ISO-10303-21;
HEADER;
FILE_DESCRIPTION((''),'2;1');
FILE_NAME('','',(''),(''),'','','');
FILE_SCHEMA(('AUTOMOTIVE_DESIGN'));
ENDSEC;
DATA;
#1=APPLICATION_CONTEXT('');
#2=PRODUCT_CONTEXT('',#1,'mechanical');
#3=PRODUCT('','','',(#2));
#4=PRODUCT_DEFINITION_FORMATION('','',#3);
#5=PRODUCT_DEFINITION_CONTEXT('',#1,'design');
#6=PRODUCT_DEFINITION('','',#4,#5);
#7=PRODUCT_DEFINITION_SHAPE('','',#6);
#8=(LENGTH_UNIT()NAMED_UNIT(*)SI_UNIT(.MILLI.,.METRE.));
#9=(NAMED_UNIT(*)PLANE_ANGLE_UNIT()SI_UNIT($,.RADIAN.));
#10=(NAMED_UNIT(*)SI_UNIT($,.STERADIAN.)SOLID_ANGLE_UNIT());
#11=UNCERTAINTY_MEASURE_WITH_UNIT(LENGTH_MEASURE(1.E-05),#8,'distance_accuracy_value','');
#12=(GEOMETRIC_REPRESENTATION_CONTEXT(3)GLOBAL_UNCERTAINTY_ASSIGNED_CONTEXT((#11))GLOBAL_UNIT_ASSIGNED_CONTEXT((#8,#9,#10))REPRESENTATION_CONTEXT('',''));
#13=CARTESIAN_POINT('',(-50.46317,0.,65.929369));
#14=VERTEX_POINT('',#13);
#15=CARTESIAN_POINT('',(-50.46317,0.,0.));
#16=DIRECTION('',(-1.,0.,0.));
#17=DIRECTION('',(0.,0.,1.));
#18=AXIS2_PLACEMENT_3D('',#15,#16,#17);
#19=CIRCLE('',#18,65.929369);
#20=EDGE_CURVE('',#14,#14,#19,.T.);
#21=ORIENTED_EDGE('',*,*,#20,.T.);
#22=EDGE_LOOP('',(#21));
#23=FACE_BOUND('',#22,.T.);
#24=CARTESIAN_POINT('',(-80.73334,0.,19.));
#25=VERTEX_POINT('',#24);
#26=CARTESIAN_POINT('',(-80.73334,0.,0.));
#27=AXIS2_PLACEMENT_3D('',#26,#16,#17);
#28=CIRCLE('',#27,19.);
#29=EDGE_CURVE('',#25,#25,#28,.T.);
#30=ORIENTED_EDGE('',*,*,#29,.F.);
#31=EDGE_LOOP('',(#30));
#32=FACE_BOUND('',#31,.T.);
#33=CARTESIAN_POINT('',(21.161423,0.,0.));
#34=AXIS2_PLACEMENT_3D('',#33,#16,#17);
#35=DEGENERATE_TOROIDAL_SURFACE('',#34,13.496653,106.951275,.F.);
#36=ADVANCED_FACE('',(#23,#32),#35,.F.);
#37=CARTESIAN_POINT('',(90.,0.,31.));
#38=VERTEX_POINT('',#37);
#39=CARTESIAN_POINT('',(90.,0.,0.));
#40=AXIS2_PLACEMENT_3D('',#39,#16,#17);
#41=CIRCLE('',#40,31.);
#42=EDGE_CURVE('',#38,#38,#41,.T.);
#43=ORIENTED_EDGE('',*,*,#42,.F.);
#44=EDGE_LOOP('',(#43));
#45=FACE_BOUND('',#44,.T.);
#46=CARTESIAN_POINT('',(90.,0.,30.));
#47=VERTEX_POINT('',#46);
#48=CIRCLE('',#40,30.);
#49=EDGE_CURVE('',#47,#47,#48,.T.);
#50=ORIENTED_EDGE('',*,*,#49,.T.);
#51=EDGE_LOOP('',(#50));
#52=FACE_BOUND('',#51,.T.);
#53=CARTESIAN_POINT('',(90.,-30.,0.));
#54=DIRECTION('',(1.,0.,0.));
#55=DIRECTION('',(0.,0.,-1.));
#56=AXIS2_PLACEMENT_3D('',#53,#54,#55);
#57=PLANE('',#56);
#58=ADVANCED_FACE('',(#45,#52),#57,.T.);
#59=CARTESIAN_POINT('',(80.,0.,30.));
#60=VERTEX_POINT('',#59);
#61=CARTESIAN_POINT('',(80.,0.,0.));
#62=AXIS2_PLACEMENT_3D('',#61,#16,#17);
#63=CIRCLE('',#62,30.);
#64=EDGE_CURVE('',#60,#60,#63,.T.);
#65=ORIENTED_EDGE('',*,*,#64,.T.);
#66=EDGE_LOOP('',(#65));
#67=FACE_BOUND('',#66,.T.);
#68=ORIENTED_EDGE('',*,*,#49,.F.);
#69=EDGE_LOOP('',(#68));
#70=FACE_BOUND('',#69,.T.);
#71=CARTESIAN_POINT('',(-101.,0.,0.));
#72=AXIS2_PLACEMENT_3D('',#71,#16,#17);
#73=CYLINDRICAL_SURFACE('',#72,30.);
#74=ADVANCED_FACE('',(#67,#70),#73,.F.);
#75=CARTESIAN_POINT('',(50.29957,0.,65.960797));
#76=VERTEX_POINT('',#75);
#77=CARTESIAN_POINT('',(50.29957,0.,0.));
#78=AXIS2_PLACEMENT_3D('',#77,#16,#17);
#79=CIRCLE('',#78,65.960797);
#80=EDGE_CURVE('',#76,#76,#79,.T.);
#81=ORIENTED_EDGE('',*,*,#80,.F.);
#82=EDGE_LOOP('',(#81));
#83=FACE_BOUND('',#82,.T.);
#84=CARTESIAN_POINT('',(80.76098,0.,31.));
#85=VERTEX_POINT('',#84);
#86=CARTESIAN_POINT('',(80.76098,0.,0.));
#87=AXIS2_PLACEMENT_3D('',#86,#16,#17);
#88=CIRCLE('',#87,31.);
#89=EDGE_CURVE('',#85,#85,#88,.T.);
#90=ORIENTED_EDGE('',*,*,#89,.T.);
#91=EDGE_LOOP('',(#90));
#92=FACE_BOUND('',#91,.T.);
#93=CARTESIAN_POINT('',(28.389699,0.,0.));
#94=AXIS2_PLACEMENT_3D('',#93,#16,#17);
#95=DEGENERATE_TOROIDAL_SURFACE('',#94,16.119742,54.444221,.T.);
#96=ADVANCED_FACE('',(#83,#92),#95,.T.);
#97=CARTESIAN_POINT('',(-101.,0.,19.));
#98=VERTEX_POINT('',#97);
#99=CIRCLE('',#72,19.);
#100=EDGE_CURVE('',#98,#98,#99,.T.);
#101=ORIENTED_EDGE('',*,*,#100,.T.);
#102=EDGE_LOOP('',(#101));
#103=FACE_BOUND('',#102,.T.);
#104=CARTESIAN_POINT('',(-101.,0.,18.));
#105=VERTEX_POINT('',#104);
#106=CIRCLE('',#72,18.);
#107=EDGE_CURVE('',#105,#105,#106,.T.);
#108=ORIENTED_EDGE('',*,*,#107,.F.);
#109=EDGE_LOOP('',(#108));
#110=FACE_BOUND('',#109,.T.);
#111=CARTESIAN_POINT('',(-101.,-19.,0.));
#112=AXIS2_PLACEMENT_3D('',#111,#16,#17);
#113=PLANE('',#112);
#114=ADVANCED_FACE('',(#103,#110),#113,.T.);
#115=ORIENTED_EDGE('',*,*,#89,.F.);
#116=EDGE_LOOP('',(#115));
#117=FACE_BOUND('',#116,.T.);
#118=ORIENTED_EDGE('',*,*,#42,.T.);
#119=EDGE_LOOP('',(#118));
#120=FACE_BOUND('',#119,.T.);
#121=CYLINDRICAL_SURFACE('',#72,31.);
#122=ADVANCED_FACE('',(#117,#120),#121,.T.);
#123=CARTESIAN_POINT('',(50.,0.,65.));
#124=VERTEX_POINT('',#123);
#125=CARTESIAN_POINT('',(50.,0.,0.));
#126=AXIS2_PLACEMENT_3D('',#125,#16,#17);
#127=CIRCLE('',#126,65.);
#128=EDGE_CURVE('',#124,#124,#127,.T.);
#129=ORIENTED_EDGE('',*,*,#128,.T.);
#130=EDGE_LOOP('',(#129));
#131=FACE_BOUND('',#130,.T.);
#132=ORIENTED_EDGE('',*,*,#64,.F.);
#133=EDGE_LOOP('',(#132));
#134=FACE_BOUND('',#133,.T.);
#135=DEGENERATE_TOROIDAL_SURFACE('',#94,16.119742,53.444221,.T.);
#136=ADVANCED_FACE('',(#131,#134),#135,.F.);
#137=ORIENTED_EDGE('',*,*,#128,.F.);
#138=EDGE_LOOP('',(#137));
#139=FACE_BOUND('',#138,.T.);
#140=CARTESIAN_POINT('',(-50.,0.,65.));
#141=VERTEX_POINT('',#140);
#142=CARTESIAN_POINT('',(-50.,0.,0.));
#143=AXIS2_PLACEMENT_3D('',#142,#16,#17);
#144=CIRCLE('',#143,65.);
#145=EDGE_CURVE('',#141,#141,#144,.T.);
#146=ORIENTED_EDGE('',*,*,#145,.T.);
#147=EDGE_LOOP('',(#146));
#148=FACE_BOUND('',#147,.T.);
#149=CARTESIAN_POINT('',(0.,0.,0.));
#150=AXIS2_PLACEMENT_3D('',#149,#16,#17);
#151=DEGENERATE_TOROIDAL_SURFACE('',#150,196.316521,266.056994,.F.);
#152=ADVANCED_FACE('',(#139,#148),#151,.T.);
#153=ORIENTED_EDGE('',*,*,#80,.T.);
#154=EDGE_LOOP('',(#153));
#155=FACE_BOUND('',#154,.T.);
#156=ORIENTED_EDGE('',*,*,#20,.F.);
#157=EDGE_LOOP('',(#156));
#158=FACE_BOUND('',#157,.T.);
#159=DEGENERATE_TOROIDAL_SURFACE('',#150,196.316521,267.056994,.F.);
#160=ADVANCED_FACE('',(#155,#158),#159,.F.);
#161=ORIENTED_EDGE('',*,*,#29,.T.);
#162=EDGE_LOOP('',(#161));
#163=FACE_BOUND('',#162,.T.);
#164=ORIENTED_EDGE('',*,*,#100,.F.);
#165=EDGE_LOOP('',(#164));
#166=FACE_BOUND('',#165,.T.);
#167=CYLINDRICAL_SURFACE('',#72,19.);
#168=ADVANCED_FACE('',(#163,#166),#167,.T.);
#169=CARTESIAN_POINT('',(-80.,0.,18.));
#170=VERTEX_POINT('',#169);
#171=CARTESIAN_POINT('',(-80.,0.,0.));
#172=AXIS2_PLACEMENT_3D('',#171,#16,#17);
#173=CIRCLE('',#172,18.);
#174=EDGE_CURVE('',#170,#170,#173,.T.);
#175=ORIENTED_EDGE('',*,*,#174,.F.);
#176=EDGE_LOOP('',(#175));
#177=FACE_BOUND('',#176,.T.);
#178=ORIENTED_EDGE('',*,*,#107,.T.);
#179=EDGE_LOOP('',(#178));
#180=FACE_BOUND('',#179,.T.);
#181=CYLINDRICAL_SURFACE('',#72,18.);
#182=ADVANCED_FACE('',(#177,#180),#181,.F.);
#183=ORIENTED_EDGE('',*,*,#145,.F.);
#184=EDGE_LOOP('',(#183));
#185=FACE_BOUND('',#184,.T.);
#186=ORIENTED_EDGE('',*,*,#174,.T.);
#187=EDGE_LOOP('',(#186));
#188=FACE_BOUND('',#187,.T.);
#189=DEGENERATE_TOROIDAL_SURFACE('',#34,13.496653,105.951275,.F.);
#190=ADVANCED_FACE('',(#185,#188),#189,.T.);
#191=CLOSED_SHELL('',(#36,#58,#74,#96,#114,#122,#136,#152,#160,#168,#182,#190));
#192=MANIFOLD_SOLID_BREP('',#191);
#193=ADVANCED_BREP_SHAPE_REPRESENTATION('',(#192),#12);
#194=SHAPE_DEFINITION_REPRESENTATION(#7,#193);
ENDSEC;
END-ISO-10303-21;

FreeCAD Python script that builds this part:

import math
import FreeCAD as App
import Part
import Sketcher

doc = App.newDocument("Part")
body = doc.addObject("PartDesign::Body", "Body")

sketch1 = body.newObject("Sketcher::SketchObject", "Sketch")
sketch1.AttachmentSupport = (doc.getObject("XY_Plane"), [""])
sketch1.MapMode = "FlatFace"
sketch1.addGeometry([
    Part.LineSegment(App.Vector(90, -31, 0), App.Vector(90, -30, 0)),
    Part.LineSegment(App.Vector(90, -30, 0), App.Vector(80, -30, 0)),
    Part.ArcOfCircle(Part.Circle(App.Vector(28.4, -16.1, 0), App.Vector(0, 0, 1), 53.4), math.radians(-66), math.radians(-15)),
    Part.ArcOfCircle(Part.Circle(App.Vector(0, 196.3, 0), App.Vector(0, 0, 1), 266.1), math.radians(-101), math.radians(-79)),
    Part.ArcOfCircle(Part.Circle(App.Vector(21.2, 13.5, 0), App.Vector(0, 0, 1), 106), math.radians(-163), math.radians(-132)),
    Part.LineSegment(App.Vector(-80, -18, 0), App.Vector(-101, -18, 0)),
    Part.LineSegment(App.Vector(-101, -18, 0), App.Vector(-101, -19, 0)),
    Part.LineSegment(App.Vector(-101, -19, 0), App.Vector(-80.7, -19, 0)),
    Part.ArcOfCircle(Part.Circle(App.Vector(21.2, 13.5, 0), App.Vector(0, 0, 1), 107), math.radians(-162), math.radians(-132)),
    Part.ArcOfCircle(Part.Circle(App.Vector(0, 196.3, 0), App.Vector(0, 0, 1), 267.1), math.radians(-101), math.radians(-79)),
    Part.ArcOfCircle(Part.Circle(App.Vector(28.4, -16.1, 0), App.Vector(0, 0, 1), 54.4), math.radians(-66), math.radians(-16)),
    Part.LineSegment(App.Vector(80.8, -31, 0), App.Vector(90, -31, 0)),
], False)
sketch1.addConstraint([
    Sketcher.Constraint("Coincident", 0, 2, 1, 1),
    Sketcher.Constraint("Coincident", 1, 2, 2, 2),
    Sketcher.Constraint("Coincident", 2, 1, 3, 2),
    Sketcher.Constraint("Coincident", 3, 1, 4, 2),
    Sketcher.Constraint("Coincident", 4, 1, 5, 1),
    Sketcher.Constraint("Coincident", 5, 2, 6, 1),
    Sketcher.Constraint("Coincident", 6, 2, 7, 1),
    Sketcher.Constraint("Coincident", 7, 2, 8, 1),
    Sketcher.Constraint("Coincident", 8, 2, 9, 1),
    Sketcher.Constraint("Coincident", 9, 2, 10, 1),
    Sketcher.Constraint("Coincident", 10, 2, 11, 1),
    Sketcher.Constraint("Coincident", 11, 2, 0, 1),
    Sketcher.Constraint("Vertical", 0),
    Sketcher.Constraint("Horizontal", 1),
    Sketcher.Constraint("Horizontal", 5),
    Sketcher.Constraint("Vertical", 6),
    Sketcher.Constraint("Horizontal", 7),
    Sketcher.Constraint("Horizontal", 11),
    Sketcher.Constraint("Coincident", 8, 3, 4, 3),
    Sketcher.Constraint("Coincident", 9, 3, 3, 3),
    Sketcher.Constraint("Coincident", 10, 3, 2, 3),
    Sketcher.Constraint("Symmetric", 2, 1, 3, 1, -2),
    Sketcher.Constraint("Equal", 0, 6),
    Sketcher.Constraint("DistanceX", 1, 2, 1, 1, 10.0),
    Sketcher.Constraint("DistanceX", 5, 2, 5, 1, 21.0),
    Sketcher.Constraint("DistanceY", 0, 1, 0, 2, 1.0),
    Sketcher.Constraint("DistanceX", -1, 1, 0, 2, 90.0),
    Sketcher.Constraint("DistanceY", 0, 2, -1, 1, 30.0),
    Sketcher.Constraint("DistanceX", -1, 1, 2, 1, 50.0),
    Sketcher.Constraint("DistanceY", 2, 1, -1, 1, 65.0),
    Sketcher.Constraint("DistanceX", 4, 1, -1, 1, 80.0),
    Sketcher.Constraint("DistanceY", 4, 1, -1, 1, 18.0),
    Sketcher.Constraint("Radius", 2, 53.444221),
    Sketcher.Constraint("Radius", 10, 54.444221),
    Sketcher.Constraint("Radius", 3, 266.056994),
    Sketcher.Constraint("Radius", 4, 105.951275),
    Sketcher.Constraint("Radius", 8, 106.951275),
    Sketcher.Constraint("Radius", 9, 267.056994),
])
revolution = body.newObject("PartDesign::Revolution", "Revolution")
revolution.Profile = sketch1
revolution.ReferenceAxis = (sketch1, ["H_Axis"])
revolution.Angle = 360

doc.recompute()
